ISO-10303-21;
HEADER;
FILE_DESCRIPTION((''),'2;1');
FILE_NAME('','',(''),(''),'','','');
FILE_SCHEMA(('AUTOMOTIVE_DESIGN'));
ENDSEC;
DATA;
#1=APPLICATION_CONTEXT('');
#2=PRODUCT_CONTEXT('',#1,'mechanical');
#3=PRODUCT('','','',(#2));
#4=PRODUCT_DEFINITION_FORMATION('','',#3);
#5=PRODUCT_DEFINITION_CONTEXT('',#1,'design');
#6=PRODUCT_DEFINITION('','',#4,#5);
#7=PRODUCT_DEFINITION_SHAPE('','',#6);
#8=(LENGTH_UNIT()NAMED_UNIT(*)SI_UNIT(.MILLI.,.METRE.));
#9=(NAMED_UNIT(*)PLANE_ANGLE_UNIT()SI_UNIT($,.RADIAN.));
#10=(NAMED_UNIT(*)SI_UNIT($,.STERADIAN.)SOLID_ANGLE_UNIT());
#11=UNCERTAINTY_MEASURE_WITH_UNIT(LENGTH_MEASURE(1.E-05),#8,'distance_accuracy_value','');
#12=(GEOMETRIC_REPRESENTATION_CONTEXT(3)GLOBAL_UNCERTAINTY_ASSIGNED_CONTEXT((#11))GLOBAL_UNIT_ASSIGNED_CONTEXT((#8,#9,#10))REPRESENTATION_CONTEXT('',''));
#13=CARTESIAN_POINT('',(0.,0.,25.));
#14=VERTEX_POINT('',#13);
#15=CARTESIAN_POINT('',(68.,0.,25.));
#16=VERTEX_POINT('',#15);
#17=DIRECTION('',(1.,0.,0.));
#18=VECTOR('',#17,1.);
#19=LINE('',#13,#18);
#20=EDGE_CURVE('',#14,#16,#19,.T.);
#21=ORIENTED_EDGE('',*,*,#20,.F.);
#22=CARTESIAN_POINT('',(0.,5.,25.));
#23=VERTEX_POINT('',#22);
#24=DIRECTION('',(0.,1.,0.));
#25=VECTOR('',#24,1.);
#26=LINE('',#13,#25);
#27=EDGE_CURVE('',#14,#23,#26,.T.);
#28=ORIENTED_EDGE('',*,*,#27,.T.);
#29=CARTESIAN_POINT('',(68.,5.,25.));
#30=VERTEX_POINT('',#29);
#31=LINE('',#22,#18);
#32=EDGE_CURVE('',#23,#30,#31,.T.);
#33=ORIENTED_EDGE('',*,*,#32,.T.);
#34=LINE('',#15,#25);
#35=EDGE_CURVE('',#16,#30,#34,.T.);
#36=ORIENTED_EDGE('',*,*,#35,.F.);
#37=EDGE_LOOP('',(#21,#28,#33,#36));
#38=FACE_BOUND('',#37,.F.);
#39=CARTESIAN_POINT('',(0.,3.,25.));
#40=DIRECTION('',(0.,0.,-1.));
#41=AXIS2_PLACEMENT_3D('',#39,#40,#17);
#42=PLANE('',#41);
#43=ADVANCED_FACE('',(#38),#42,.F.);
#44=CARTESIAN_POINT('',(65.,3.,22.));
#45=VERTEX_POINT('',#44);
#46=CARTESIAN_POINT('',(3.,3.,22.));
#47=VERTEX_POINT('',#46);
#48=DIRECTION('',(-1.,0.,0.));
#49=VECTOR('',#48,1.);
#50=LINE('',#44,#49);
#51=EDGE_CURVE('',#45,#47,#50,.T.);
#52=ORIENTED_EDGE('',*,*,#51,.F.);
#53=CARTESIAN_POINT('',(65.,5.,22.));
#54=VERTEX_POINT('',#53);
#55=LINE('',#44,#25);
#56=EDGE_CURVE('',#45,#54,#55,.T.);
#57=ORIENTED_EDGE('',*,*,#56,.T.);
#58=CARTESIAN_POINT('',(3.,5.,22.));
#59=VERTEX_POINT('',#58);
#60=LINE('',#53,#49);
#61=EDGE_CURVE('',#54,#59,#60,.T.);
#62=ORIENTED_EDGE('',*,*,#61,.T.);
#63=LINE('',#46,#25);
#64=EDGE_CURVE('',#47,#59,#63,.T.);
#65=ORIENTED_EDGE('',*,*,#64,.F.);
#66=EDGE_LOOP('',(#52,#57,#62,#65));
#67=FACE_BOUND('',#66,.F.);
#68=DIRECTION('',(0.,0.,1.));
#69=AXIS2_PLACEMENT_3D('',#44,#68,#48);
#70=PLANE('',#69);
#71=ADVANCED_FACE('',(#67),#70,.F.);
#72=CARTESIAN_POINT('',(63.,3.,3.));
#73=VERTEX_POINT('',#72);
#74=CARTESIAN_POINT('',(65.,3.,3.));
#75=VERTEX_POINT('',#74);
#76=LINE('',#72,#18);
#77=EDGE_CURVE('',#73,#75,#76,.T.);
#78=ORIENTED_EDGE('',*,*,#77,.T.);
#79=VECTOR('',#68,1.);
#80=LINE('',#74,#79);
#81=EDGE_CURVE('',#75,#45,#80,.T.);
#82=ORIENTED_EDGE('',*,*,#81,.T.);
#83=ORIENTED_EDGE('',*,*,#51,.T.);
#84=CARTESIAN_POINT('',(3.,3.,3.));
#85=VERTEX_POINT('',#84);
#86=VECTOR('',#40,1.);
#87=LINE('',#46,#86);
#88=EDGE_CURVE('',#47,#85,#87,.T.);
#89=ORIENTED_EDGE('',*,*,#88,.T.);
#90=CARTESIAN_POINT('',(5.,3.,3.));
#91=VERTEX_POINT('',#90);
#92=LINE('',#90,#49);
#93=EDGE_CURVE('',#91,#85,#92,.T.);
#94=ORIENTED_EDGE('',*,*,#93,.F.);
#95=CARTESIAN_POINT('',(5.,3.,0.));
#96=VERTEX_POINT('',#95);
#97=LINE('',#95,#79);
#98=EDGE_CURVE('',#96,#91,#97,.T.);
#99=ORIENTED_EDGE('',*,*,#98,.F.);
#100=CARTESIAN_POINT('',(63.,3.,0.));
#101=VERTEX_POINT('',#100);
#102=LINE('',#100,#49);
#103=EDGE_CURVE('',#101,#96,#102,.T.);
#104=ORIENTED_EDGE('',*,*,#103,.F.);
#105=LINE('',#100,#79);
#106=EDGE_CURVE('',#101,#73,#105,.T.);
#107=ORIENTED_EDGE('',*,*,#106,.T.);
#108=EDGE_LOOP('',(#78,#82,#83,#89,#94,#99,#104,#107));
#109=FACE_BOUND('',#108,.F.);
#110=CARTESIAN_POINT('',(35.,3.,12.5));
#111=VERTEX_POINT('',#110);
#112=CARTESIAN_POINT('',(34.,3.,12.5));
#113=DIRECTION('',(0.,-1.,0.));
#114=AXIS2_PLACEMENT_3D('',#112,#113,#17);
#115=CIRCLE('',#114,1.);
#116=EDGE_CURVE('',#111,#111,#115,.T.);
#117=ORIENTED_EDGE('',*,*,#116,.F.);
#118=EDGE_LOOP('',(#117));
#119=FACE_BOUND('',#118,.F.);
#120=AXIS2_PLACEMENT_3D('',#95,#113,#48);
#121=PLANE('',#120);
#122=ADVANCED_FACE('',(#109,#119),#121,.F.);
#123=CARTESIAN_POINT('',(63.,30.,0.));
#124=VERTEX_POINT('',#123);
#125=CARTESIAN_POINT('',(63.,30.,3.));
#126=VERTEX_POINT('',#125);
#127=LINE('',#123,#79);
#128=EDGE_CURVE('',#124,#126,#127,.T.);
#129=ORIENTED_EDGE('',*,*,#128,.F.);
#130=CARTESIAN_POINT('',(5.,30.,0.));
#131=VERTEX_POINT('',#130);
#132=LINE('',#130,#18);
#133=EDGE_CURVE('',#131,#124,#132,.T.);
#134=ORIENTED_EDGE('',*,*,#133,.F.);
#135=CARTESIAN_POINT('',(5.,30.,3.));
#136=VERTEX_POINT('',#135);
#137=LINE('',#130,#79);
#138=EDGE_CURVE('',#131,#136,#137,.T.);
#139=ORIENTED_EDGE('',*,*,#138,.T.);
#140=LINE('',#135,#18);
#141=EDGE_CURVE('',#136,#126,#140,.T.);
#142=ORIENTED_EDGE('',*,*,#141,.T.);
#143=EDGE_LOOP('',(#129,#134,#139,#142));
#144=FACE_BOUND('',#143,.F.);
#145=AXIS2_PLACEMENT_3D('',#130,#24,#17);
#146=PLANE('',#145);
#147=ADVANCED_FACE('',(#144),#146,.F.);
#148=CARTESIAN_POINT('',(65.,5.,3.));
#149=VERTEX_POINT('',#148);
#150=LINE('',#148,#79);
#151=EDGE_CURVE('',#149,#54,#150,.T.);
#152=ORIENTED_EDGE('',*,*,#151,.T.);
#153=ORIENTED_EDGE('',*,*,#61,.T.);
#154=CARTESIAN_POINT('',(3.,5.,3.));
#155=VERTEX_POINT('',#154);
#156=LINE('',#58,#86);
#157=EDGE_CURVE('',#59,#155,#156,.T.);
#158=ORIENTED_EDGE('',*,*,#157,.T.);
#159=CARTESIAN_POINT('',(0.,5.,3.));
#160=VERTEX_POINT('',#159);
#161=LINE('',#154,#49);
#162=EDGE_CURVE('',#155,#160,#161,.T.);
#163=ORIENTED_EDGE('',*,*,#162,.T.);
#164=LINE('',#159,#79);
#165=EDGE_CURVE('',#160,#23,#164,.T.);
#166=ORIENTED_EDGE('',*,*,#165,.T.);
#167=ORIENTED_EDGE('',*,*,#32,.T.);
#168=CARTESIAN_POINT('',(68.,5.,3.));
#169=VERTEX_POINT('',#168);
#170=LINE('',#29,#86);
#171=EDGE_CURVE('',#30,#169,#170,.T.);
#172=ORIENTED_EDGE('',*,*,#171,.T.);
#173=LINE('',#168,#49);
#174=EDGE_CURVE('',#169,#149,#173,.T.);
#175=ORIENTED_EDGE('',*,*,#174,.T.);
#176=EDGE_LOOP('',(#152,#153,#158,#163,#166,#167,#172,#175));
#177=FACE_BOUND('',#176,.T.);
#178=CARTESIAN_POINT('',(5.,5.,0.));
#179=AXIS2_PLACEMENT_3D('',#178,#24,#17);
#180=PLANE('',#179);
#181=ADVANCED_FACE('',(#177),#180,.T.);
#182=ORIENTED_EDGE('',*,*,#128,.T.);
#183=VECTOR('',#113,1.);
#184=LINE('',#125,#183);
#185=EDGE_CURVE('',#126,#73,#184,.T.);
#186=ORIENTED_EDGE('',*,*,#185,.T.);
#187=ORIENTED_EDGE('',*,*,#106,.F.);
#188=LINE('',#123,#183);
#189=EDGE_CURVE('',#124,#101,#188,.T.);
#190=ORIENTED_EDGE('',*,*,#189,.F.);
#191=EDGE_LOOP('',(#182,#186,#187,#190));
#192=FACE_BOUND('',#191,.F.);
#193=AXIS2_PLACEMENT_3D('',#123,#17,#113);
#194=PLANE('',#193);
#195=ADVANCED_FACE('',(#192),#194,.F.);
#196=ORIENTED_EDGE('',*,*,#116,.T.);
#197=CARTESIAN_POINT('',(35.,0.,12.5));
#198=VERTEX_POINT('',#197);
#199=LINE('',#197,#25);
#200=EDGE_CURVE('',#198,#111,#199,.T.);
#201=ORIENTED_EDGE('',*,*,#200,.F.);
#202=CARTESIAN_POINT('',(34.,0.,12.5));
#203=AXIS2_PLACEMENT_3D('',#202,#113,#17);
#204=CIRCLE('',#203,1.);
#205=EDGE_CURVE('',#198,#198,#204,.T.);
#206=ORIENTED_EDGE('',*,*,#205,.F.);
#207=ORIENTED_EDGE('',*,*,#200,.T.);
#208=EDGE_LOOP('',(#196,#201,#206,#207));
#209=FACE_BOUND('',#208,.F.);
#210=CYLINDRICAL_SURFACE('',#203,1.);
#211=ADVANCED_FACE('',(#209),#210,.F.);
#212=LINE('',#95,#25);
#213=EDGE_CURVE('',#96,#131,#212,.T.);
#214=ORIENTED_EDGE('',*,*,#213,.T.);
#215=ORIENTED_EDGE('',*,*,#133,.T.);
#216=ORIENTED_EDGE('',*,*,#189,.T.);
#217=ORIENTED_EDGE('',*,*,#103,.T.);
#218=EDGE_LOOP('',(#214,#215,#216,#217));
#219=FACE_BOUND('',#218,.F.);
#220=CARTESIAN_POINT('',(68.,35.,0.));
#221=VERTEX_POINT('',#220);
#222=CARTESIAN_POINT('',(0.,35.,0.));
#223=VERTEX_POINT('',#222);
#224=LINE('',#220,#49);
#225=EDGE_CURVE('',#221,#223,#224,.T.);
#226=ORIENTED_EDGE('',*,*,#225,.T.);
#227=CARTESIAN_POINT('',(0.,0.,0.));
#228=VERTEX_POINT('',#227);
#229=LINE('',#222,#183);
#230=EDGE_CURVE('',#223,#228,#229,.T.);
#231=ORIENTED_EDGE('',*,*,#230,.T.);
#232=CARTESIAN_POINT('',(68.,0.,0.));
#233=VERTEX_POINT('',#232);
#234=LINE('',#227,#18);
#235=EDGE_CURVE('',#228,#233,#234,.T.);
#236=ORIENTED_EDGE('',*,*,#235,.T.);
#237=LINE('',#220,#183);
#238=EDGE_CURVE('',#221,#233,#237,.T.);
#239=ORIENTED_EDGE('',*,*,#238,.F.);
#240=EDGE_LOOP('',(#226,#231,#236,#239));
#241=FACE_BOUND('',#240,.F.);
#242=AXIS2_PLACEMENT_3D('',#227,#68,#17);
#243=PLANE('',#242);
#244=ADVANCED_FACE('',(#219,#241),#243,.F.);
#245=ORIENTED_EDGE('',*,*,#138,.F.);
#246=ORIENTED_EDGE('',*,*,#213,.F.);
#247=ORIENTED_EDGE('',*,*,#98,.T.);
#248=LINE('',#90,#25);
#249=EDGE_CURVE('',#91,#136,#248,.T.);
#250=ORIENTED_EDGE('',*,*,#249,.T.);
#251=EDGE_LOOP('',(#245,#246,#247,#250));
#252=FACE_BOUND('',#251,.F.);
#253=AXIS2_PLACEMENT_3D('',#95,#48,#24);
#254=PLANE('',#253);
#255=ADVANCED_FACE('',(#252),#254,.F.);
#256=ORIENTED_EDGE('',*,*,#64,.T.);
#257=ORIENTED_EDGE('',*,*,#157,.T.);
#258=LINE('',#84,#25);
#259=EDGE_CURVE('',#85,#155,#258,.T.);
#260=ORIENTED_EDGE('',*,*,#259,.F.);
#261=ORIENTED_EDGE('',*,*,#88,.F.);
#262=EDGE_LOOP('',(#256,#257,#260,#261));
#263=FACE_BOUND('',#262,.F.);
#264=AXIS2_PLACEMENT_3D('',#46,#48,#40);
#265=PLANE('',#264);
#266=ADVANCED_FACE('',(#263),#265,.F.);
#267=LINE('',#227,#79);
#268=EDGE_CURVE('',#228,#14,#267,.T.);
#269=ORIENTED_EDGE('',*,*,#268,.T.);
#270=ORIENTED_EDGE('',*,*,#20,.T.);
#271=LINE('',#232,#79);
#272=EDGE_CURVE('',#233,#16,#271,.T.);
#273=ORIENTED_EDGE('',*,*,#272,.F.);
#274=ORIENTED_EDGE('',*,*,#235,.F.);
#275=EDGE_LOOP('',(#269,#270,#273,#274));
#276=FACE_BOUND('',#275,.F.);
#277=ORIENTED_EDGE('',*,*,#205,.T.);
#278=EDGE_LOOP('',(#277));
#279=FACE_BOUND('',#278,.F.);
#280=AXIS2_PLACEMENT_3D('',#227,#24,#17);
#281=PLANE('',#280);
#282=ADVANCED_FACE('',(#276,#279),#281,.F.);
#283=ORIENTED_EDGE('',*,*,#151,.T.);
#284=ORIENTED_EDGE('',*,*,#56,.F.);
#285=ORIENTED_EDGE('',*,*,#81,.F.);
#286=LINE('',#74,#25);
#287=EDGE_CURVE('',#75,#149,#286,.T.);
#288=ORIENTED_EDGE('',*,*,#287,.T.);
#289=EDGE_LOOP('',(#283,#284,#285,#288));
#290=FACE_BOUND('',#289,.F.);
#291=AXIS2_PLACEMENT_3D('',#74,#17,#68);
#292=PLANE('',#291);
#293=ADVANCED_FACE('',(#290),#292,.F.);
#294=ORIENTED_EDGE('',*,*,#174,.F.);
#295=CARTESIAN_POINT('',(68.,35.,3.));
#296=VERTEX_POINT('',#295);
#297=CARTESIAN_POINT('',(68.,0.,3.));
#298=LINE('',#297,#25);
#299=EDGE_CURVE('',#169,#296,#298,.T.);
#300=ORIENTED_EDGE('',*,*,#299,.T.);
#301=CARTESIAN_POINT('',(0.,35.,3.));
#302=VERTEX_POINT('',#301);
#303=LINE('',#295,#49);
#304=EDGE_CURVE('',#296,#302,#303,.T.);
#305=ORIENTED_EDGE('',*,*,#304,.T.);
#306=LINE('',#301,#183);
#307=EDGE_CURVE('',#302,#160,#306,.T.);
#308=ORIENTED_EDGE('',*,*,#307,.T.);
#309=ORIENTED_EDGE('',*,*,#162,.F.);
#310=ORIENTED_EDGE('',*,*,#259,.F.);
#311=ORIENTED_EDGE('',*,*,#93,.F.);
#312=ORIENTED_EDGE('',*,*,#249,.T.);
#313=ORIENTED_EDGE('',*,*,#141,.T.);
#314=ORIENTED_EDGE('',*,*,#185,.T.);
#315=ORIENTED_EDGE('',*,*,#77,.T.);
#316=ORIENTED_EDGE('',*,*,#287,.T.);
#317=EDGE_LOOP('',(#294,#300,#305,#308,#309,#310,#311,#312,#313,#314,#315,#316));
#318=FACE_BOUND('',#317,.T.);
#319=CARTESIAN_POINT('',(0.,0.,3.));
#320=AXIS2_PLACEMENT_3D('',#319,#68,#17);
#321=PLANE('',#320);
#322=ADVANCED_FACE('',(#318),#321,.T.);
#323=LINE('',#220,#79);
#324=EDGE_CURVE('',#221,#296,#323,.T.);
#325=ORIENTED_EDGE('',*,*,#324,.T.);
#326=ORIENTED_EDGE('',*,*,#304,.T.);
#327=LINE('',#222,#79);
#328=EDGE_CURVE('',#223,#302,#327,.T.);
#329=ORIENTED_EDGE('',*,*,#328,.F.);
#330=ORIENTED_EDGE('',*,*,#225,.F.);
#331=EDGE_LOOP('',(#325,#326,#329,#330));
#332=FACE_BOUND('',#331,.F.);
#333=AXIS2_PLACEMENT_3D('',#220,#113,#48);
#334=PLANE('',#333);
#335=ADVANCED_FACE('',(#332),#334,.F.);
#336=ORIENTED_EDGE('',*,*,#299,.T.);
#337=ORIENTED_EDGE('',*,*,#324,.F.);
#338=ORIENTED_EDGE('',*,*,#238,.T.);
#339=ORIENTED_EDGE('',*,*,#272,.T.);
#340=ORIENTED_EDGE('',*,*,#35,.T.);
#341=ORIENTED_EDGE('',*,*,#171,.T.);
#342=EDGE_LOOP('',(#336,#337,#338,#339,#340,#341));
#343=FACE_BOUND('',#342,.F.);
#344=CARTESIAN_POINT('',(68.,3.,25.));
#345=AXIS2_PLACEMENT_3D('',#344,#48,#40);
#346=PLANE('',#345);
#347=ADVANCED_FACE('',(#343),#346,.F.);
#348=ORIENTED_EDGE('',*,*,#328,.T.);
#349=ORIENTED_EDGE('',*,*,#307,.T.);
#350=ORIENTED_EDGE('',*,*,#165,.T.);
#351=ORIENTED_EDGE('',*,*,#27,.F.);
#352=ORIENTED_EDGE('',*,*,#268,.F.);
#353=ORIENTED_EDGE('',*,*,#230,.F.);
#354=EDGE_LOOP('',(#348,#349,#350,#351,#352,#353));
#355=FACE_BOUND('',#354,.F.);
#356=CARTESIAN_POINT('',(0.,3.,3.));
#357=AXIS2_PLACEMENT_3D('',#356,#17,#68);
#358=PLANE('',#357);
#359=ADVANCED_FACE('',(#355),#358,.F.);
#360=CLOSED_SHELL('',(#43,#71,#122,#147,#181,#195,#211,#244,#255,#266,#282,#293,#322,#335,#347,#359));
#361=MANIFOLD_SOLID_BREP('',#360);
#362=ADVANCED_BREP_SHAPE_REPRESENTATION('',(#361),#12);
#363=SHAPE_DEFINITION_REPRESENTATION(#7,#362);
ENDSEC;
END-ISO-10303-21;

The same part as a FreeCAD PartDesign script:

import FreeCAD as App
import Part
import Sketcher

V = App.Vector
Q = App.Units.Quantity


def add_polygon(sketch, points):
    """Adds a closed chain of lines whose ends are joined by coincident constraints."""
    first, n = sketch.GeometryCount, len(points)
    for a, b in zip(points, points[1:] + points[:1]):
        sketch.addGeometry(Part.LineSegment(App.Vector(*a, 0), App.Vector(*b, 0)), False)
    for i in range(n):
        sketch.addConstraint(Sketcher.Constraint("Coincident", first + i, 2, first + (i + 1) % n, 1))

doc = App.newDocument("Part")
body = doc.addObject("PartDesign::Body", "Body")

sketch1 = doc.addObject("Sketcher::SketchObject", "Sketch")
body.addObject(sketch1)
sketch1.AttachmentSupport = (doc.XY_Plane, [""])
sketch1.MapMode = "FlatFace"
add_polygon(sketch1, [(0, 35), (0, 3), (5, 3), (5, 30), (63, 30), (63, 3), (68, 3), (68, 35)])
sketch1.addConstraint([
    Sketcher.Constraint("Vertical", 0),
    Sketcher.Constraint("Horizontal", 1),
    Sketcher.Constraint("Vertical", 2),
    Sketcher.Constraint("Horizontal", 3),
    Sketcher.Constraint("Vertical", 4),
    Sketcher.Constraint("Horizontal", 5),
    Sketcher.Constraint("Vertical", 6),
    Sketcher.Constraint("Horizontal", 7),
    Sketcher.Constraint("PointOnObject", 0, 2, -2),
    Sketcher.Constraint("Horizontal", 1, 2, 4, 2),
    Sketcher.Constraint("Equal", 1, 5),
    Sketcher.Constraint("DistanceX", 1, 1, 1, 2, Q("5 mm")),
    Sketcher.Constraint("DistanceX", 7, 2, 7, 1, Q("68 mm")),
    Sketcher.Constraint("DistanceY", -1, 1, 0, 2, Q("3 mm")),
    Sketcher.Constraint("DistanceY", -1, 1, 6, 2, Q("35 mm")),
    Sketcher.Constraint("DistanceY", 3, 2, 6, 2, Q("5 mm")),
])
pad1 = doc.addObject("PartDesign::Pad", "Pad")
body.addObject(pad1)
pad1.Profile = sketch1
pad1.Length = 3

sketch2 = doc.addObject("Sketcher::SketchObject", "Sketch001")
body.addObject(sketch2)
sketch2.AttachmentSupport = (doc.XY_Plane, [""])
sketch2.MapMode = "FlatFace"
add_polygon(sketch2, [(0, 3), (0, 0), (68, 0), (68, 3)])
sketch2.addConstraint([
    Sketcher.Constraint("Vertical", 0),
    Sketcher.Constraint("Horizontal", 1),
    Sketcher.Constraint("Vertical", 2),
    Sketcher.Constraint("Horizontal", 3),
    Sketcher.Constraint("Coincident", 0, 2, -1, 1),
    Sketcher.Constraint("DistanceX", 1, 1, 1, 2, Q("68 mm")),
    Sketcher.Constraint("DistanceY", 0, 2, 0, 1, Q("3 mm")),
])
pad2 = doc.addObject("PartDesign::Pad", "Pad001")
body.addObject(pad2)
pad2.Profile = sketch2
pad2.Length = 25

sketch3 = doc.addObject("Sketcher::SketchObject", "Sketch002")
body.addObject(sketch3)
sketch3.AttachmentSupport = (doc.XZ_Plane, [""])
sketch3.MapMode = "FlatFace"
sketch3.addGeometry(Part.Circle(V(34, 12.5, 0), V(0, 0, 1), 1), False)
sketch3.addConstraint([
    Sketcher.Constraint("Diameter", 0, Q("2 mm")),
    Sketcher.Constraint("DistanceX", -1, 1, 0, 3, Q("34 mm")),
    Sketcher.Constraint("DistanceY", -1, 1, 0, 3, Q("12.5 mm")),
])
pocket1 = doc.addObject("PartDesign::Pocket", "Pocket")
body.addObject(pocket1)
pocket1.Profile = sketch3
pocket1.Type = "UpToFirst"

sketch4 = doc.addObject("Sketcher::SketchObject", "Sketch003")
body.addObject(sketch4)
sketch4.AttachmentSupport = (doc.XZ_Plane, [""])
sketch4.MapMode = "FlatFace"
sketch4.AttachmentOffset = App.Placement(V(0, 0, -3), App.Rotation())
add_polygon(sketch4, [(0, 3), (0, 25), (68, 25), (68, 3), (65, 3), (65, 22), (3, 22), (3, 3)])
sketch4.addConstraint([
    Sketcher.Constraint("Vertical", 0),
    Sketcher.Constraint("Horizontal", 1),
    Sketcher.Constraint("Vertical", 2),
    Sketcher.Constraint("Horizontal", 3),
    Sketcher.Constraint("Vertical", 4),
    Sketcher.Constraint("Horizontal", 5),
    Sketcher.Constraint("Vertical", 6),
    Sketcher.Constraint("Horizontal", 7),
    Sketcher.Constraint("PointOnObject", 0, 2, -2),
    Sketcher.Constraint("Horizontal", 3, 2, 6, 2),
    Sketcher.Constraint("Equal", 3, 7),
    Sketcher.Constraint("DistanceX", 3, 2, 3, 1, Q("3 mm")),
    Sketcher.Constraint("DistanceY", -1, 1, 2, 2, Q("3 mm")),
    Sketcher.Constraint("DistanceY", 4, 2, 1, 2, Q("3 mm")),
    Sketcher.Constraint("DistanceX", 1, 1, 1, 2, Q("68 mm")),
    Sketcher.Constraint("DistanceY", 0, 1, 0, 2, Q("22 mm")),
])
pad3 = doc.addObject("PartDesign::Pad", "Pad002")
body.addObject(pad3)
pad3.Profile = sketch4
pad3.Length = 2
pad3.Reversed = True

doc.recompute()
